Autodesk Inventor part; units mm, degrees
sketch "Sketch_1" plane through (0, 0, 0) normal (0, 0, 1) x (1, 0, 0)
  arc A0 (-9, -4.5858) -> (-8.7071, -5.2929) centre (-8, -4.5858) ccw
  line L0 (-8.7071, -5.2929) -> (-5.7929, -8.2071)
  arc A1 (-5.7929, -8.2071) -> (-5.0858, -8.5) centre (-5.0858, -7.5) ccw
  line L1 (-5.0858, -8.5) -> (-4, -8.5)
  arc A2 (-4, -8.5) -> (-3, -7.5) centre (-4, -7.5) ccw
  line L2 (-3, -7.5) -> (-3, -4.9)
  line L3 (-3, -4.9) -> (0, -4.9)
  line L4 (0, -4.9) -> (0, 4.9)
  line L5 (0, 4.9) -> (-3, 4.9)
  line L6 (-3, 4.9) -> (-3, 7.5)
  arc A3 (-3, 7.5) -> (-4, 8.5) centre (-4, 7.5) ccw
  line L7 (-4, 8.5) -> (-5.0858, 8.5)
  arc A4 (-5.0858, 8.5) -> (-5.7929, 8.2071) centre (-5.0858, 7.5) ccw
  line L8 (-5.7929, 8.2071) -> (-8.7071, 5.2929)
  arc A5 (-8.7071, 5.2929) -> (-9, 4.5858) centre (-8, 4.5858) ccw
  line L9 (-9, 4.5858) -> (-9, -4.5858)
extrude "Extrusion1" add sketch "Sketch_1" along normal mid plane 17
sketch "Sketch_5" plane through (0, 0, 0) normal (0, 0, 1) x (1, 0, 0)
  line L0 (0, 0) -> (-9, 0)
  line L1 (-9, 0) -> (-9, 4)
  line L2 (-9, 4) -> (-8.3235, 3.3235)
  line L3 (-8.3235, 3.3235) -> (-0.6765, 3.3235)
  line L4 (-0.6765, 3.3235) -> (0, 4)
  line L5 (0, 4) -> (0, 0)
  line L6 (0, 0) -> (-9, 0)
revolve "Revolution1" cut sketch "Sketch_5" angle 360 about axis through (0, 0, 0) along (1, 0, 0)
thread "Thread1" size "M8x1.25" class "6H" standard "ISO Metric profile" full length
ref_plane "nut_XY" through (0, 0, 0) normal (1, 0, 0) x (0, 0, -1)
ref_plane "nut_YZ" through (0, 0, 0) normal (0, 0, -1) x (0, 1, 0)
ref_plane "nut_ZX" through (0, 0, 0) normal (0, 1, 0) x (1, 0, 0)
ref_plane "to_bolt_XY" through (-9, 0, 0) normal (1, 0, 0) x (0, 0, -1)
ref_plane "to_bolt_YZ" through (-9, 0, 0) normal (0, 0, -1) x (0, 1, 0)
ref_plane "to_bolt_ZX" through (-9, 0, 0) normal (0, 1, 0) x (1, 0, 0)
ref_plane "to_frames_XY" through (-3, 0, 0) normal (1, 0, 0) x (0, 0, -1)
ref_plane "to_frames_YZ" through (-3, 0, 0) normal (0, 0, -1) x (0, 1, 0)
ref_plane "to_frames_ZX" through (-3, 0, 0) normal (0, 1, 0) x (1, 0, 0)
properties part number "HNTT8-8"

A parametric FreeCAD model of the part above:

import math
import FreeCAD as App
import Part
import Sketcher
Q = App.Units.Quantity

doc = App.newDocument("Part")
body = doc.addObject("PartDesign::Body", "Body")

# Sketch on XY plane
sketch1 = body.newObject("Sketcher::SketchObject", "Sketch")
sketch1.AttachmentSupport = (doc.getObject("XY_Plane"), [""])
sketch1.MapMode = "FlatFace"
sketch1.addGeometry([
    Part.LineSegment(App.Vector(-9, 4.6, 0), App.Vector(-9, -4.6, 0)),  # 0
    Part.ArcOfCircle(Part.Circle(App.Vector(-8, -4.6, 0), App.Vector(0, 0, 1), 1), math.radians(180), math.radians(225)),  # 1
    Part.LineSegment(App.Vector(-8.7, -5.3, 0), App.Vector(-5.8, -8.2, 0)),  # 2
    Part.ArcOfCircle(Part.Circle(App.Vector(-5.1, -7.5, 0), App.Vector(0, 0, 1), 1), math.radians(-135), math.radians(-90)),  # 3
    Part.LineSegment(App.Vector(-5.1, -8.5, 0), App.Vector(-4, -8.5, 0)),  # 4
    Part.ArcOfCircle(Part.Circle(App.Vector(-4, -7.5, 0), App.Vector(0, 0, 1), 1), math.radians(-90), math.radians(0)),  # 5
    Part.LineSegment(App.Vector(-3, -7.5, 0), App.Vector(-3, -4.9, 0)),  # 6
    Part.LineSegment(App.Vector(-3, -4.9, 0), App.Vector(0, -4.9, 0)),  # 7
    Part.LineSegment(App.Vector(0, -4.9, 0), App.Vector(0, 4.9, 0)),  # 8
    Part.LineSegment(App.Vector(0, 4.9, 0), App.Vector(-3, 4.9, 0)),  # 9
    Part.LineSegment(App.Vector(-3, 4.9, 0), App.Vector(-3, 7.5, 0)),  # 10
    Part.ArcOfCircle(Part.Circle(App.Vector(-4, 7.5, 0), App.Vector(0, 0, 1), 1), math.radians(0), math.radians(90)),  # 11
    Part.LineSegment(App.Vector(-4, 8.5, 0), App.Vector(-5.1, 8.5, 0)),  # 12
    Part.ArcOfCircle(Part.Circle(App.Vector(-5.1, 7.5, 0), App.Vector(0, 0, 1), 1), math.radians(90), math.radians(135)),  # 13
    Part.LineSegment(App.Vector(-5.8, 8.2, 0), App.Vector(-8.7, 5.3, 0)),  # 14
    Part.ArcOfCircle(Part.Circle(App.Vector(-8, 4.6, 0), App.Vector(0, 0, 1), 1), math.radians(135), math.radians(180)),  # 15
], False)
sketch1.addConstraint([
    Sketcher.Constraint("Tangent", 0, 2, 1, 1),
    Sketcher.Constraint("Tangent", 1, 2, 2, 1),
    Sketcher.Constraint("Tangent", 2, 2, 3, 1),
    Sketcher.Constraint("Tangent", 3, 2, 4, 1),
    Sketcher.Constraint("Tangent", 4, 2, 5, 1),
    Sketcher.Constraint("Tangent", 5, 2, 6, 1),
    Sketcher.Constraint("Coincident", 6, 2, 7, 1),
    Sketcher.Constraint("Coincident", 7, 2, 8, 1),
    Sketcher.Constraint("Coincident", 8, 2, 9, 1),
    Sketcher.Constraint("Coincident", 9, 2, 10, 1),
    Sketcher.Constraint("Tangent", 10, 2, 11, 1),
    Sketcher.Constraint("Tangent", 11, 2, 12, 1),
    Sketcher.Constraint("Tangent", 12, 2, 13, 1),
    Sketcher.Constraint("Tangent", 13, 2, 14, 1),
    Sketcher.Constraint("Tangent", 14, 2, 15, 1),
    Sketcher.Constraint("Tangent", 15, 2, 0, 1),
    Sketcher.Constraint("Vertical", 0),
    Sketcher.Constraint("Horizontal", 4),
    Sketcher.Constraint("Vertical", 6),
    Sketcher.Constraint("Horizontal", 7),
    Sketcher.Constraint("Vertical", 8),
    Sketcher.Constraint("Horizontal", 9),
    Sketcher.Constraint("Vertical", 10),
    Sketcher.Constraint("Horizontal", 12),
    Sketcher.Constraint("Equal", 1, 3),
    Sketcher.Constraint("Equal", 3, 5),
    Sketcher.Constraint("Equal", 5, 11),
    Sketcher.Constraint("Equal", 11, 13),
    Sketcher.Constraint("Equal", 13, 15),
    Sketcher.Constraint("Symmetric", 7, 2, 8, 2, -1, 1),
    Sketcher.Constraint("Symmetric", 5, 3, 11, 3, -1),
    Sketcher.Constraint("Symmetric", 2, 2, 13, 2, -1),
    Sketcher.Constraint("Perpendicular", 2, 14),
    Sketcher.Constraint("Radius", 1, Q("1 mm")),
    Sketcher.Constraint("DistanceX", 7, 1, 7, 2, Q("3 mm")),
    Sketcher.Constraint("DistanceY", 6, 1, 6, 2, Q("2.6 mm")),
    Sketcher.Constraint("DistanceY", 8, 1, 8, 2, Q("9.8 mm")),
    Sketcher.Constraint("DistanceX", 1, 3, -1, 1, Q("8 mm")),
    Sketcher.Constraint("DistanceX", 4, 1, 4, 2, Q("1.0858 mm")),
])
pad1 = body.newObject("PartDesign::Pad", "Pad")
pad1.Profile = sketch1
pad1.Length = 17
pad1.Midplane = True

# Sketch on XY plane
sketch2 = body.newObject("Sketcher::SketchObject", "Sketch001")
sketch2.AttachmentSupport = (doc.getObject("XY_Plane"), [""])
sketch2.MapMode = "FlatFace"
sketch2.addGeometry([
    Part.LineSegment(App.Vector(-9, 0, 0), App.Vector(0, 0, 0)),  # 0
    Part.LineSegment(App.Vector(0, 0, 0), App.Vector(0, 4, 0)),  # 1
    Part.LineSegment(App.Vector(0, 4, 0), App.Vector(-0.7, 3.3, 0)),  # 2
    Part.LineSegment(App.Vector(-0.7, 3.3, 0), App.Vector(-8.3, 3.3, 0)),  # 3
    Part.LineSegment(App.Vector(-8.3, 3.3, 0), App.Vector(-9, 4, 0)),  # 4
    Part.LineSegment(App.Vector(-9, 4, 0), App.Vector(-9, 0, 0)),  # 5
], False)
sketch2.addConstraint([
    Sketcher.Constraint("Coincident", 0, 2, 1, 1),
    Sketcher.Constraint("Coincident", 1, 2, 2, 1),
    Sketcher.Constraint("Coincident", 2, 2, 3, 1),
    Sketcher.Constraint("Coincident", 3, 2, 4, 1),
    Sketcher.Constraint("Coincident", 4, 2, 5, 1),
    Sketcher.Constraint("Coincident", 5, 2, 0, 1),
    Sketcher.Constraint("Horizontal", 0),
    Sketcher.Constraint("Vertical", 1),
    Sketcher.Constraint("Horizontal", 3),
    Sketcher.Constraint("Vertical", 5),
    Sketcher.Constraint("Coincident", 0, 2, -1, 1),
    Sketcher.Constraint("Perpendicular", 2, 4),
    Sketcher.Constraint("Horizontal", 1, 2, 4, 2),
    Sketcher.Constraint("Equal", 2, 4),
    Sketcher.Constraint("DistanceX", 0, 1, 0, 2, Q("9 mm")),
    Sketcher.Constraint("DistanceY", 1, 1, 1, 2, Q("4 mm")),
    Sketcher.Constraint("DistanceX", 3, 2, 3, 1, Q("7.647 mm")),
])
groove = body.newObject("PartDesign::Groove", "Groove")
groove.Profile = sketch2
groove.ReferenceAxis = (sketch2, ["H_Axis"])
groove.Angle = 360

doc.recompute()
